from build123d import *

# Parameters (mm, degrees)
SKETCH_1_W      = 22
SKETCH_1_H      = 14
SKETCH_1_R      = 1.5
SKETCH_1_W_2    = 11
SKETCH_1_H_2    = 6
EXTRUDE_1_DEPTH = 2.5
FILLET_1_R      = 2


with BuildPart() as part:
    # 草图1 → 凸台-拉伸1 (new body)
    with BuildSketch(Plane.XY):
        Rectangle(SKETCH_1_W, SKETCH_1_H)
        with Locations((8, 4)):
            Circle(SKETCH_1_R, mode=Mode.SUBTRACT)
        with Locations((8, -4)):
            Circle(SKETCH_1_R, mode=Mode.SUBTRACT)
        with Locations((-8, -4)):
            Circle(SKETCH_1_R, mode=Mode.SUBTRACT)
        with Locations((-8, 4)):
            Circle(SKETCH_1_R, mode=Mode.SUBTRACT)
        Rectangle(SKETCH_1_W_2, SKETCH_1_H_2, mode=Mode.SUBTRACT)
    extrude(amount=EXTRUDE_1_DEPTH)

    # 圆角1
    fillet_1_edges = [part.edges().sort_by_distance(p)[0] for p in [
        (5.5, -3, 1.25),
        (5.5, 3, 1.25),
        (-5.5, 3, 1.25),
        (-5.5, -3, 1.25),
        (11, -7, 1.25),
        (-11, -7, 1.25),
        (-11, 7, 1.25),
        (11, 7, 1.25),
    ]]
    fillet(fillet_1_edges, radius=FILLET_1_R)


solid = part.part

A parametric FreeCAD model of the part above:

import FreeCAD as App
import Part
import Sketcher

V = App.Vector
Q = App.Units.Quantity


def edges_at(feature, points):
    """Names of the edges that pass closest to the given points."""
    edges = feature.Shape.Edges
    near = lambda p: min(range(len(edges)), key=lambda i: edges[i].distToShape(Part.Vertex(*p))[0])
    return sorted({f"Edge{near(p) + 1}" for p in points})


def add_polygon(sketch, points):
    """Adds a closed chain of lines whose ends are joined by coincident constraints."""
    first, n = sketch.GeometryCount, len(points)
    for a, b in zip(points, points[1:] + points[:1]):
        sketch.addGeometry(Part.LineSegment(App.Vector(*a, 0), App.Vector(*b, 0)), False)
    for i in range(n):
        sketch.addConstraint(Sketcher.Constraint("Coincident", first + i, 2, first + (i + 1) % n, 1))

doc = App.newDocument("Part")
params = doc.addObject("Spreadsheet::Sheet", "Params")
for row, (alias, value) in enumerate([
    ("sketch1_diameter", "3 mm"),
    ("sketch1_width", "22 mm"),
    ("sketch1_width2", "11 mm"),
    ("sketch1_height", "14 mm"),
    ("sketch1_height2", "6 mm"),
    ("pad1_length", "2.5 mm"),
    ("fillet_radius", "2 mm"),
], start=1):
    params.set(f"A{row}", alias)
    params.set(f"B{row}", "=" + value)
    params.setAlias(f"B{row}", alias)

body = doc.addObject("PartDesign::Body", "Body")

# Sketch on XY plane
sketch1 = body.newObject("Sketcher::SketchObject", "Sketch")
sketch1.AttachmentSupport = (doc.getObject("XY_Plane"), [""])
sketch1.MapMode = "FlatFace"
add_polygon(sketch1, [(-11, 7), (-11, -7), (11, -7), (11, 7)])  # lines 0-3
sketch1.addGeometry(Part.Circle(V(-8, -4, 0), V(0, 0, 1), 1.5), False)  # 4
sketch1.addGeometry(Part.Circle(V(8, -4, 0), V(0, 0, 1), 1.5), False)  # 5
sketch1.addGeometry(Part.Circle(V(-8, 4, 0), V(0, 0, 1), 1.5), False)  # 6
add_polygon(sketch1, [(5.5, -3), (-5.5, -3), (-5.5, 3), (5.5, 3)])  # lines 7-10
sketch1.addGeometry(Part.Circle(V(8, 4, 0), V(0, 0, 1), 1.5), False)  # 11
sketch1.addConstraint(Sketcher.Constraint("Vertical", 0))
sketch1.addConstraint(Sketcher.Constraint("Horizontal", 1))
sketch1.addConstraint(Sketcher.Constraint("Vertical", 2))
sketch1.addConstraint(Sketcher.Constraint("Horizontal", 3))
sketch1.addConstraint(Sketcher.Constraint("Horizontal", 7))
sketch1.addConstraint(Sketcher.Constraint("Vertical", 8))
sketch1.addConstraint(Sketcher.Constraint("Horizontal", 9))
sketch1.addConstraint(Sketcher.Constraint("Vertical", 10))
sketch1.addConstraint(Sketcher.Constraint("Equal", 4, 5))
sketch1.addConstraint(Sketcher.Constraint("Equal", 5, 6))
sketch1.addConstraint(Sketcher.Constraint("Equal", 6, 11))
sketch1.addConstraint(Sketcher.Constraint("Symmetric", 5, 3, 6, 3, -1, 1))
sketch1.addConstraint(Sketcher.Constraint("Symmetric", 4, 3, 11, 3, -1, 1))
sketch1.addConstraint(Sketcher.Constraint("Symmetric", 0, 2, 2, 2, -1, 1))
sketch1.addConstraint(Sketcher.Constraint("Symmetric", 7, 2, 9, 2, -1, 1))
sketch1.addConstraint(Sketcher.Constraint("Symmetric", 4, 3, 5, 3, -2))
sketch1.addConstraint(Sketcher.Constraint("Diameter", 4, Q("3 mm")))
sketch1.addConstraint(Sketcher.Constraint("DistanceX", 1, 1, 1, 2, Q("22 mm")))
sketch1.addConstraint(Sketcher.Constraint("DistanceX", 7, 2, 7, 1, Q("11 mm")))
sketch1.addConstraint(Sketcher.Constraint("DistanceY", 0, 2, 0, 1, Q("14 mm")))
sketch1.addConstraint(Sketcher.Constraint("DistanceY", 8, 1, 8, 2, Q("6 mm")))
sketch1.addConstraint(Sketcher.Constraint("DistanceX", 4, 3, -1, 1, Q("8 mm")))
sketch1.addConstraint(Sketcher.Constraint("DistanceY", 4, 3, -1, 1, Q("4 mm")))
sketch1.setExpression("Constraints[24]", "Params.sketch1_diameter")
sketch1.setExpression("Constraints[25]", "Params.sketch1_width")
sketch1.setExpression("Constraints[26]", "Params.sketch1_width2")
sketch1.setExpression("Constraints[27]", "Params.sketch1_height")
sketch1.setExpression("Constraints[28]", "Params.sketch1_height2")
pad1 = body.newObject("PartDesign::Pad", "Pad")
pad1.Profile = sketch1
pad1.setExpression("Length", "Params.pad1_length")
doc.recompute()

fillet = body.newObject("PartDesign::Fillet", "Fillet")
fillet.Base = (pad1, edges_at(pad1, [
    (5.5, -3, 1.25),
    (5.5, 3, 1.25),
    (-5.5, 3, 1.25),
    (-5.5, -3, 1.25),
    (11, -7, 1.25),
    (-11, -7, 1.25),
    (-11, 7, 1.25),
    (11, 7, 1.25),
]))
fillet.setExpression("Radius", "Params.fillet_radius")

doc.recompute()
